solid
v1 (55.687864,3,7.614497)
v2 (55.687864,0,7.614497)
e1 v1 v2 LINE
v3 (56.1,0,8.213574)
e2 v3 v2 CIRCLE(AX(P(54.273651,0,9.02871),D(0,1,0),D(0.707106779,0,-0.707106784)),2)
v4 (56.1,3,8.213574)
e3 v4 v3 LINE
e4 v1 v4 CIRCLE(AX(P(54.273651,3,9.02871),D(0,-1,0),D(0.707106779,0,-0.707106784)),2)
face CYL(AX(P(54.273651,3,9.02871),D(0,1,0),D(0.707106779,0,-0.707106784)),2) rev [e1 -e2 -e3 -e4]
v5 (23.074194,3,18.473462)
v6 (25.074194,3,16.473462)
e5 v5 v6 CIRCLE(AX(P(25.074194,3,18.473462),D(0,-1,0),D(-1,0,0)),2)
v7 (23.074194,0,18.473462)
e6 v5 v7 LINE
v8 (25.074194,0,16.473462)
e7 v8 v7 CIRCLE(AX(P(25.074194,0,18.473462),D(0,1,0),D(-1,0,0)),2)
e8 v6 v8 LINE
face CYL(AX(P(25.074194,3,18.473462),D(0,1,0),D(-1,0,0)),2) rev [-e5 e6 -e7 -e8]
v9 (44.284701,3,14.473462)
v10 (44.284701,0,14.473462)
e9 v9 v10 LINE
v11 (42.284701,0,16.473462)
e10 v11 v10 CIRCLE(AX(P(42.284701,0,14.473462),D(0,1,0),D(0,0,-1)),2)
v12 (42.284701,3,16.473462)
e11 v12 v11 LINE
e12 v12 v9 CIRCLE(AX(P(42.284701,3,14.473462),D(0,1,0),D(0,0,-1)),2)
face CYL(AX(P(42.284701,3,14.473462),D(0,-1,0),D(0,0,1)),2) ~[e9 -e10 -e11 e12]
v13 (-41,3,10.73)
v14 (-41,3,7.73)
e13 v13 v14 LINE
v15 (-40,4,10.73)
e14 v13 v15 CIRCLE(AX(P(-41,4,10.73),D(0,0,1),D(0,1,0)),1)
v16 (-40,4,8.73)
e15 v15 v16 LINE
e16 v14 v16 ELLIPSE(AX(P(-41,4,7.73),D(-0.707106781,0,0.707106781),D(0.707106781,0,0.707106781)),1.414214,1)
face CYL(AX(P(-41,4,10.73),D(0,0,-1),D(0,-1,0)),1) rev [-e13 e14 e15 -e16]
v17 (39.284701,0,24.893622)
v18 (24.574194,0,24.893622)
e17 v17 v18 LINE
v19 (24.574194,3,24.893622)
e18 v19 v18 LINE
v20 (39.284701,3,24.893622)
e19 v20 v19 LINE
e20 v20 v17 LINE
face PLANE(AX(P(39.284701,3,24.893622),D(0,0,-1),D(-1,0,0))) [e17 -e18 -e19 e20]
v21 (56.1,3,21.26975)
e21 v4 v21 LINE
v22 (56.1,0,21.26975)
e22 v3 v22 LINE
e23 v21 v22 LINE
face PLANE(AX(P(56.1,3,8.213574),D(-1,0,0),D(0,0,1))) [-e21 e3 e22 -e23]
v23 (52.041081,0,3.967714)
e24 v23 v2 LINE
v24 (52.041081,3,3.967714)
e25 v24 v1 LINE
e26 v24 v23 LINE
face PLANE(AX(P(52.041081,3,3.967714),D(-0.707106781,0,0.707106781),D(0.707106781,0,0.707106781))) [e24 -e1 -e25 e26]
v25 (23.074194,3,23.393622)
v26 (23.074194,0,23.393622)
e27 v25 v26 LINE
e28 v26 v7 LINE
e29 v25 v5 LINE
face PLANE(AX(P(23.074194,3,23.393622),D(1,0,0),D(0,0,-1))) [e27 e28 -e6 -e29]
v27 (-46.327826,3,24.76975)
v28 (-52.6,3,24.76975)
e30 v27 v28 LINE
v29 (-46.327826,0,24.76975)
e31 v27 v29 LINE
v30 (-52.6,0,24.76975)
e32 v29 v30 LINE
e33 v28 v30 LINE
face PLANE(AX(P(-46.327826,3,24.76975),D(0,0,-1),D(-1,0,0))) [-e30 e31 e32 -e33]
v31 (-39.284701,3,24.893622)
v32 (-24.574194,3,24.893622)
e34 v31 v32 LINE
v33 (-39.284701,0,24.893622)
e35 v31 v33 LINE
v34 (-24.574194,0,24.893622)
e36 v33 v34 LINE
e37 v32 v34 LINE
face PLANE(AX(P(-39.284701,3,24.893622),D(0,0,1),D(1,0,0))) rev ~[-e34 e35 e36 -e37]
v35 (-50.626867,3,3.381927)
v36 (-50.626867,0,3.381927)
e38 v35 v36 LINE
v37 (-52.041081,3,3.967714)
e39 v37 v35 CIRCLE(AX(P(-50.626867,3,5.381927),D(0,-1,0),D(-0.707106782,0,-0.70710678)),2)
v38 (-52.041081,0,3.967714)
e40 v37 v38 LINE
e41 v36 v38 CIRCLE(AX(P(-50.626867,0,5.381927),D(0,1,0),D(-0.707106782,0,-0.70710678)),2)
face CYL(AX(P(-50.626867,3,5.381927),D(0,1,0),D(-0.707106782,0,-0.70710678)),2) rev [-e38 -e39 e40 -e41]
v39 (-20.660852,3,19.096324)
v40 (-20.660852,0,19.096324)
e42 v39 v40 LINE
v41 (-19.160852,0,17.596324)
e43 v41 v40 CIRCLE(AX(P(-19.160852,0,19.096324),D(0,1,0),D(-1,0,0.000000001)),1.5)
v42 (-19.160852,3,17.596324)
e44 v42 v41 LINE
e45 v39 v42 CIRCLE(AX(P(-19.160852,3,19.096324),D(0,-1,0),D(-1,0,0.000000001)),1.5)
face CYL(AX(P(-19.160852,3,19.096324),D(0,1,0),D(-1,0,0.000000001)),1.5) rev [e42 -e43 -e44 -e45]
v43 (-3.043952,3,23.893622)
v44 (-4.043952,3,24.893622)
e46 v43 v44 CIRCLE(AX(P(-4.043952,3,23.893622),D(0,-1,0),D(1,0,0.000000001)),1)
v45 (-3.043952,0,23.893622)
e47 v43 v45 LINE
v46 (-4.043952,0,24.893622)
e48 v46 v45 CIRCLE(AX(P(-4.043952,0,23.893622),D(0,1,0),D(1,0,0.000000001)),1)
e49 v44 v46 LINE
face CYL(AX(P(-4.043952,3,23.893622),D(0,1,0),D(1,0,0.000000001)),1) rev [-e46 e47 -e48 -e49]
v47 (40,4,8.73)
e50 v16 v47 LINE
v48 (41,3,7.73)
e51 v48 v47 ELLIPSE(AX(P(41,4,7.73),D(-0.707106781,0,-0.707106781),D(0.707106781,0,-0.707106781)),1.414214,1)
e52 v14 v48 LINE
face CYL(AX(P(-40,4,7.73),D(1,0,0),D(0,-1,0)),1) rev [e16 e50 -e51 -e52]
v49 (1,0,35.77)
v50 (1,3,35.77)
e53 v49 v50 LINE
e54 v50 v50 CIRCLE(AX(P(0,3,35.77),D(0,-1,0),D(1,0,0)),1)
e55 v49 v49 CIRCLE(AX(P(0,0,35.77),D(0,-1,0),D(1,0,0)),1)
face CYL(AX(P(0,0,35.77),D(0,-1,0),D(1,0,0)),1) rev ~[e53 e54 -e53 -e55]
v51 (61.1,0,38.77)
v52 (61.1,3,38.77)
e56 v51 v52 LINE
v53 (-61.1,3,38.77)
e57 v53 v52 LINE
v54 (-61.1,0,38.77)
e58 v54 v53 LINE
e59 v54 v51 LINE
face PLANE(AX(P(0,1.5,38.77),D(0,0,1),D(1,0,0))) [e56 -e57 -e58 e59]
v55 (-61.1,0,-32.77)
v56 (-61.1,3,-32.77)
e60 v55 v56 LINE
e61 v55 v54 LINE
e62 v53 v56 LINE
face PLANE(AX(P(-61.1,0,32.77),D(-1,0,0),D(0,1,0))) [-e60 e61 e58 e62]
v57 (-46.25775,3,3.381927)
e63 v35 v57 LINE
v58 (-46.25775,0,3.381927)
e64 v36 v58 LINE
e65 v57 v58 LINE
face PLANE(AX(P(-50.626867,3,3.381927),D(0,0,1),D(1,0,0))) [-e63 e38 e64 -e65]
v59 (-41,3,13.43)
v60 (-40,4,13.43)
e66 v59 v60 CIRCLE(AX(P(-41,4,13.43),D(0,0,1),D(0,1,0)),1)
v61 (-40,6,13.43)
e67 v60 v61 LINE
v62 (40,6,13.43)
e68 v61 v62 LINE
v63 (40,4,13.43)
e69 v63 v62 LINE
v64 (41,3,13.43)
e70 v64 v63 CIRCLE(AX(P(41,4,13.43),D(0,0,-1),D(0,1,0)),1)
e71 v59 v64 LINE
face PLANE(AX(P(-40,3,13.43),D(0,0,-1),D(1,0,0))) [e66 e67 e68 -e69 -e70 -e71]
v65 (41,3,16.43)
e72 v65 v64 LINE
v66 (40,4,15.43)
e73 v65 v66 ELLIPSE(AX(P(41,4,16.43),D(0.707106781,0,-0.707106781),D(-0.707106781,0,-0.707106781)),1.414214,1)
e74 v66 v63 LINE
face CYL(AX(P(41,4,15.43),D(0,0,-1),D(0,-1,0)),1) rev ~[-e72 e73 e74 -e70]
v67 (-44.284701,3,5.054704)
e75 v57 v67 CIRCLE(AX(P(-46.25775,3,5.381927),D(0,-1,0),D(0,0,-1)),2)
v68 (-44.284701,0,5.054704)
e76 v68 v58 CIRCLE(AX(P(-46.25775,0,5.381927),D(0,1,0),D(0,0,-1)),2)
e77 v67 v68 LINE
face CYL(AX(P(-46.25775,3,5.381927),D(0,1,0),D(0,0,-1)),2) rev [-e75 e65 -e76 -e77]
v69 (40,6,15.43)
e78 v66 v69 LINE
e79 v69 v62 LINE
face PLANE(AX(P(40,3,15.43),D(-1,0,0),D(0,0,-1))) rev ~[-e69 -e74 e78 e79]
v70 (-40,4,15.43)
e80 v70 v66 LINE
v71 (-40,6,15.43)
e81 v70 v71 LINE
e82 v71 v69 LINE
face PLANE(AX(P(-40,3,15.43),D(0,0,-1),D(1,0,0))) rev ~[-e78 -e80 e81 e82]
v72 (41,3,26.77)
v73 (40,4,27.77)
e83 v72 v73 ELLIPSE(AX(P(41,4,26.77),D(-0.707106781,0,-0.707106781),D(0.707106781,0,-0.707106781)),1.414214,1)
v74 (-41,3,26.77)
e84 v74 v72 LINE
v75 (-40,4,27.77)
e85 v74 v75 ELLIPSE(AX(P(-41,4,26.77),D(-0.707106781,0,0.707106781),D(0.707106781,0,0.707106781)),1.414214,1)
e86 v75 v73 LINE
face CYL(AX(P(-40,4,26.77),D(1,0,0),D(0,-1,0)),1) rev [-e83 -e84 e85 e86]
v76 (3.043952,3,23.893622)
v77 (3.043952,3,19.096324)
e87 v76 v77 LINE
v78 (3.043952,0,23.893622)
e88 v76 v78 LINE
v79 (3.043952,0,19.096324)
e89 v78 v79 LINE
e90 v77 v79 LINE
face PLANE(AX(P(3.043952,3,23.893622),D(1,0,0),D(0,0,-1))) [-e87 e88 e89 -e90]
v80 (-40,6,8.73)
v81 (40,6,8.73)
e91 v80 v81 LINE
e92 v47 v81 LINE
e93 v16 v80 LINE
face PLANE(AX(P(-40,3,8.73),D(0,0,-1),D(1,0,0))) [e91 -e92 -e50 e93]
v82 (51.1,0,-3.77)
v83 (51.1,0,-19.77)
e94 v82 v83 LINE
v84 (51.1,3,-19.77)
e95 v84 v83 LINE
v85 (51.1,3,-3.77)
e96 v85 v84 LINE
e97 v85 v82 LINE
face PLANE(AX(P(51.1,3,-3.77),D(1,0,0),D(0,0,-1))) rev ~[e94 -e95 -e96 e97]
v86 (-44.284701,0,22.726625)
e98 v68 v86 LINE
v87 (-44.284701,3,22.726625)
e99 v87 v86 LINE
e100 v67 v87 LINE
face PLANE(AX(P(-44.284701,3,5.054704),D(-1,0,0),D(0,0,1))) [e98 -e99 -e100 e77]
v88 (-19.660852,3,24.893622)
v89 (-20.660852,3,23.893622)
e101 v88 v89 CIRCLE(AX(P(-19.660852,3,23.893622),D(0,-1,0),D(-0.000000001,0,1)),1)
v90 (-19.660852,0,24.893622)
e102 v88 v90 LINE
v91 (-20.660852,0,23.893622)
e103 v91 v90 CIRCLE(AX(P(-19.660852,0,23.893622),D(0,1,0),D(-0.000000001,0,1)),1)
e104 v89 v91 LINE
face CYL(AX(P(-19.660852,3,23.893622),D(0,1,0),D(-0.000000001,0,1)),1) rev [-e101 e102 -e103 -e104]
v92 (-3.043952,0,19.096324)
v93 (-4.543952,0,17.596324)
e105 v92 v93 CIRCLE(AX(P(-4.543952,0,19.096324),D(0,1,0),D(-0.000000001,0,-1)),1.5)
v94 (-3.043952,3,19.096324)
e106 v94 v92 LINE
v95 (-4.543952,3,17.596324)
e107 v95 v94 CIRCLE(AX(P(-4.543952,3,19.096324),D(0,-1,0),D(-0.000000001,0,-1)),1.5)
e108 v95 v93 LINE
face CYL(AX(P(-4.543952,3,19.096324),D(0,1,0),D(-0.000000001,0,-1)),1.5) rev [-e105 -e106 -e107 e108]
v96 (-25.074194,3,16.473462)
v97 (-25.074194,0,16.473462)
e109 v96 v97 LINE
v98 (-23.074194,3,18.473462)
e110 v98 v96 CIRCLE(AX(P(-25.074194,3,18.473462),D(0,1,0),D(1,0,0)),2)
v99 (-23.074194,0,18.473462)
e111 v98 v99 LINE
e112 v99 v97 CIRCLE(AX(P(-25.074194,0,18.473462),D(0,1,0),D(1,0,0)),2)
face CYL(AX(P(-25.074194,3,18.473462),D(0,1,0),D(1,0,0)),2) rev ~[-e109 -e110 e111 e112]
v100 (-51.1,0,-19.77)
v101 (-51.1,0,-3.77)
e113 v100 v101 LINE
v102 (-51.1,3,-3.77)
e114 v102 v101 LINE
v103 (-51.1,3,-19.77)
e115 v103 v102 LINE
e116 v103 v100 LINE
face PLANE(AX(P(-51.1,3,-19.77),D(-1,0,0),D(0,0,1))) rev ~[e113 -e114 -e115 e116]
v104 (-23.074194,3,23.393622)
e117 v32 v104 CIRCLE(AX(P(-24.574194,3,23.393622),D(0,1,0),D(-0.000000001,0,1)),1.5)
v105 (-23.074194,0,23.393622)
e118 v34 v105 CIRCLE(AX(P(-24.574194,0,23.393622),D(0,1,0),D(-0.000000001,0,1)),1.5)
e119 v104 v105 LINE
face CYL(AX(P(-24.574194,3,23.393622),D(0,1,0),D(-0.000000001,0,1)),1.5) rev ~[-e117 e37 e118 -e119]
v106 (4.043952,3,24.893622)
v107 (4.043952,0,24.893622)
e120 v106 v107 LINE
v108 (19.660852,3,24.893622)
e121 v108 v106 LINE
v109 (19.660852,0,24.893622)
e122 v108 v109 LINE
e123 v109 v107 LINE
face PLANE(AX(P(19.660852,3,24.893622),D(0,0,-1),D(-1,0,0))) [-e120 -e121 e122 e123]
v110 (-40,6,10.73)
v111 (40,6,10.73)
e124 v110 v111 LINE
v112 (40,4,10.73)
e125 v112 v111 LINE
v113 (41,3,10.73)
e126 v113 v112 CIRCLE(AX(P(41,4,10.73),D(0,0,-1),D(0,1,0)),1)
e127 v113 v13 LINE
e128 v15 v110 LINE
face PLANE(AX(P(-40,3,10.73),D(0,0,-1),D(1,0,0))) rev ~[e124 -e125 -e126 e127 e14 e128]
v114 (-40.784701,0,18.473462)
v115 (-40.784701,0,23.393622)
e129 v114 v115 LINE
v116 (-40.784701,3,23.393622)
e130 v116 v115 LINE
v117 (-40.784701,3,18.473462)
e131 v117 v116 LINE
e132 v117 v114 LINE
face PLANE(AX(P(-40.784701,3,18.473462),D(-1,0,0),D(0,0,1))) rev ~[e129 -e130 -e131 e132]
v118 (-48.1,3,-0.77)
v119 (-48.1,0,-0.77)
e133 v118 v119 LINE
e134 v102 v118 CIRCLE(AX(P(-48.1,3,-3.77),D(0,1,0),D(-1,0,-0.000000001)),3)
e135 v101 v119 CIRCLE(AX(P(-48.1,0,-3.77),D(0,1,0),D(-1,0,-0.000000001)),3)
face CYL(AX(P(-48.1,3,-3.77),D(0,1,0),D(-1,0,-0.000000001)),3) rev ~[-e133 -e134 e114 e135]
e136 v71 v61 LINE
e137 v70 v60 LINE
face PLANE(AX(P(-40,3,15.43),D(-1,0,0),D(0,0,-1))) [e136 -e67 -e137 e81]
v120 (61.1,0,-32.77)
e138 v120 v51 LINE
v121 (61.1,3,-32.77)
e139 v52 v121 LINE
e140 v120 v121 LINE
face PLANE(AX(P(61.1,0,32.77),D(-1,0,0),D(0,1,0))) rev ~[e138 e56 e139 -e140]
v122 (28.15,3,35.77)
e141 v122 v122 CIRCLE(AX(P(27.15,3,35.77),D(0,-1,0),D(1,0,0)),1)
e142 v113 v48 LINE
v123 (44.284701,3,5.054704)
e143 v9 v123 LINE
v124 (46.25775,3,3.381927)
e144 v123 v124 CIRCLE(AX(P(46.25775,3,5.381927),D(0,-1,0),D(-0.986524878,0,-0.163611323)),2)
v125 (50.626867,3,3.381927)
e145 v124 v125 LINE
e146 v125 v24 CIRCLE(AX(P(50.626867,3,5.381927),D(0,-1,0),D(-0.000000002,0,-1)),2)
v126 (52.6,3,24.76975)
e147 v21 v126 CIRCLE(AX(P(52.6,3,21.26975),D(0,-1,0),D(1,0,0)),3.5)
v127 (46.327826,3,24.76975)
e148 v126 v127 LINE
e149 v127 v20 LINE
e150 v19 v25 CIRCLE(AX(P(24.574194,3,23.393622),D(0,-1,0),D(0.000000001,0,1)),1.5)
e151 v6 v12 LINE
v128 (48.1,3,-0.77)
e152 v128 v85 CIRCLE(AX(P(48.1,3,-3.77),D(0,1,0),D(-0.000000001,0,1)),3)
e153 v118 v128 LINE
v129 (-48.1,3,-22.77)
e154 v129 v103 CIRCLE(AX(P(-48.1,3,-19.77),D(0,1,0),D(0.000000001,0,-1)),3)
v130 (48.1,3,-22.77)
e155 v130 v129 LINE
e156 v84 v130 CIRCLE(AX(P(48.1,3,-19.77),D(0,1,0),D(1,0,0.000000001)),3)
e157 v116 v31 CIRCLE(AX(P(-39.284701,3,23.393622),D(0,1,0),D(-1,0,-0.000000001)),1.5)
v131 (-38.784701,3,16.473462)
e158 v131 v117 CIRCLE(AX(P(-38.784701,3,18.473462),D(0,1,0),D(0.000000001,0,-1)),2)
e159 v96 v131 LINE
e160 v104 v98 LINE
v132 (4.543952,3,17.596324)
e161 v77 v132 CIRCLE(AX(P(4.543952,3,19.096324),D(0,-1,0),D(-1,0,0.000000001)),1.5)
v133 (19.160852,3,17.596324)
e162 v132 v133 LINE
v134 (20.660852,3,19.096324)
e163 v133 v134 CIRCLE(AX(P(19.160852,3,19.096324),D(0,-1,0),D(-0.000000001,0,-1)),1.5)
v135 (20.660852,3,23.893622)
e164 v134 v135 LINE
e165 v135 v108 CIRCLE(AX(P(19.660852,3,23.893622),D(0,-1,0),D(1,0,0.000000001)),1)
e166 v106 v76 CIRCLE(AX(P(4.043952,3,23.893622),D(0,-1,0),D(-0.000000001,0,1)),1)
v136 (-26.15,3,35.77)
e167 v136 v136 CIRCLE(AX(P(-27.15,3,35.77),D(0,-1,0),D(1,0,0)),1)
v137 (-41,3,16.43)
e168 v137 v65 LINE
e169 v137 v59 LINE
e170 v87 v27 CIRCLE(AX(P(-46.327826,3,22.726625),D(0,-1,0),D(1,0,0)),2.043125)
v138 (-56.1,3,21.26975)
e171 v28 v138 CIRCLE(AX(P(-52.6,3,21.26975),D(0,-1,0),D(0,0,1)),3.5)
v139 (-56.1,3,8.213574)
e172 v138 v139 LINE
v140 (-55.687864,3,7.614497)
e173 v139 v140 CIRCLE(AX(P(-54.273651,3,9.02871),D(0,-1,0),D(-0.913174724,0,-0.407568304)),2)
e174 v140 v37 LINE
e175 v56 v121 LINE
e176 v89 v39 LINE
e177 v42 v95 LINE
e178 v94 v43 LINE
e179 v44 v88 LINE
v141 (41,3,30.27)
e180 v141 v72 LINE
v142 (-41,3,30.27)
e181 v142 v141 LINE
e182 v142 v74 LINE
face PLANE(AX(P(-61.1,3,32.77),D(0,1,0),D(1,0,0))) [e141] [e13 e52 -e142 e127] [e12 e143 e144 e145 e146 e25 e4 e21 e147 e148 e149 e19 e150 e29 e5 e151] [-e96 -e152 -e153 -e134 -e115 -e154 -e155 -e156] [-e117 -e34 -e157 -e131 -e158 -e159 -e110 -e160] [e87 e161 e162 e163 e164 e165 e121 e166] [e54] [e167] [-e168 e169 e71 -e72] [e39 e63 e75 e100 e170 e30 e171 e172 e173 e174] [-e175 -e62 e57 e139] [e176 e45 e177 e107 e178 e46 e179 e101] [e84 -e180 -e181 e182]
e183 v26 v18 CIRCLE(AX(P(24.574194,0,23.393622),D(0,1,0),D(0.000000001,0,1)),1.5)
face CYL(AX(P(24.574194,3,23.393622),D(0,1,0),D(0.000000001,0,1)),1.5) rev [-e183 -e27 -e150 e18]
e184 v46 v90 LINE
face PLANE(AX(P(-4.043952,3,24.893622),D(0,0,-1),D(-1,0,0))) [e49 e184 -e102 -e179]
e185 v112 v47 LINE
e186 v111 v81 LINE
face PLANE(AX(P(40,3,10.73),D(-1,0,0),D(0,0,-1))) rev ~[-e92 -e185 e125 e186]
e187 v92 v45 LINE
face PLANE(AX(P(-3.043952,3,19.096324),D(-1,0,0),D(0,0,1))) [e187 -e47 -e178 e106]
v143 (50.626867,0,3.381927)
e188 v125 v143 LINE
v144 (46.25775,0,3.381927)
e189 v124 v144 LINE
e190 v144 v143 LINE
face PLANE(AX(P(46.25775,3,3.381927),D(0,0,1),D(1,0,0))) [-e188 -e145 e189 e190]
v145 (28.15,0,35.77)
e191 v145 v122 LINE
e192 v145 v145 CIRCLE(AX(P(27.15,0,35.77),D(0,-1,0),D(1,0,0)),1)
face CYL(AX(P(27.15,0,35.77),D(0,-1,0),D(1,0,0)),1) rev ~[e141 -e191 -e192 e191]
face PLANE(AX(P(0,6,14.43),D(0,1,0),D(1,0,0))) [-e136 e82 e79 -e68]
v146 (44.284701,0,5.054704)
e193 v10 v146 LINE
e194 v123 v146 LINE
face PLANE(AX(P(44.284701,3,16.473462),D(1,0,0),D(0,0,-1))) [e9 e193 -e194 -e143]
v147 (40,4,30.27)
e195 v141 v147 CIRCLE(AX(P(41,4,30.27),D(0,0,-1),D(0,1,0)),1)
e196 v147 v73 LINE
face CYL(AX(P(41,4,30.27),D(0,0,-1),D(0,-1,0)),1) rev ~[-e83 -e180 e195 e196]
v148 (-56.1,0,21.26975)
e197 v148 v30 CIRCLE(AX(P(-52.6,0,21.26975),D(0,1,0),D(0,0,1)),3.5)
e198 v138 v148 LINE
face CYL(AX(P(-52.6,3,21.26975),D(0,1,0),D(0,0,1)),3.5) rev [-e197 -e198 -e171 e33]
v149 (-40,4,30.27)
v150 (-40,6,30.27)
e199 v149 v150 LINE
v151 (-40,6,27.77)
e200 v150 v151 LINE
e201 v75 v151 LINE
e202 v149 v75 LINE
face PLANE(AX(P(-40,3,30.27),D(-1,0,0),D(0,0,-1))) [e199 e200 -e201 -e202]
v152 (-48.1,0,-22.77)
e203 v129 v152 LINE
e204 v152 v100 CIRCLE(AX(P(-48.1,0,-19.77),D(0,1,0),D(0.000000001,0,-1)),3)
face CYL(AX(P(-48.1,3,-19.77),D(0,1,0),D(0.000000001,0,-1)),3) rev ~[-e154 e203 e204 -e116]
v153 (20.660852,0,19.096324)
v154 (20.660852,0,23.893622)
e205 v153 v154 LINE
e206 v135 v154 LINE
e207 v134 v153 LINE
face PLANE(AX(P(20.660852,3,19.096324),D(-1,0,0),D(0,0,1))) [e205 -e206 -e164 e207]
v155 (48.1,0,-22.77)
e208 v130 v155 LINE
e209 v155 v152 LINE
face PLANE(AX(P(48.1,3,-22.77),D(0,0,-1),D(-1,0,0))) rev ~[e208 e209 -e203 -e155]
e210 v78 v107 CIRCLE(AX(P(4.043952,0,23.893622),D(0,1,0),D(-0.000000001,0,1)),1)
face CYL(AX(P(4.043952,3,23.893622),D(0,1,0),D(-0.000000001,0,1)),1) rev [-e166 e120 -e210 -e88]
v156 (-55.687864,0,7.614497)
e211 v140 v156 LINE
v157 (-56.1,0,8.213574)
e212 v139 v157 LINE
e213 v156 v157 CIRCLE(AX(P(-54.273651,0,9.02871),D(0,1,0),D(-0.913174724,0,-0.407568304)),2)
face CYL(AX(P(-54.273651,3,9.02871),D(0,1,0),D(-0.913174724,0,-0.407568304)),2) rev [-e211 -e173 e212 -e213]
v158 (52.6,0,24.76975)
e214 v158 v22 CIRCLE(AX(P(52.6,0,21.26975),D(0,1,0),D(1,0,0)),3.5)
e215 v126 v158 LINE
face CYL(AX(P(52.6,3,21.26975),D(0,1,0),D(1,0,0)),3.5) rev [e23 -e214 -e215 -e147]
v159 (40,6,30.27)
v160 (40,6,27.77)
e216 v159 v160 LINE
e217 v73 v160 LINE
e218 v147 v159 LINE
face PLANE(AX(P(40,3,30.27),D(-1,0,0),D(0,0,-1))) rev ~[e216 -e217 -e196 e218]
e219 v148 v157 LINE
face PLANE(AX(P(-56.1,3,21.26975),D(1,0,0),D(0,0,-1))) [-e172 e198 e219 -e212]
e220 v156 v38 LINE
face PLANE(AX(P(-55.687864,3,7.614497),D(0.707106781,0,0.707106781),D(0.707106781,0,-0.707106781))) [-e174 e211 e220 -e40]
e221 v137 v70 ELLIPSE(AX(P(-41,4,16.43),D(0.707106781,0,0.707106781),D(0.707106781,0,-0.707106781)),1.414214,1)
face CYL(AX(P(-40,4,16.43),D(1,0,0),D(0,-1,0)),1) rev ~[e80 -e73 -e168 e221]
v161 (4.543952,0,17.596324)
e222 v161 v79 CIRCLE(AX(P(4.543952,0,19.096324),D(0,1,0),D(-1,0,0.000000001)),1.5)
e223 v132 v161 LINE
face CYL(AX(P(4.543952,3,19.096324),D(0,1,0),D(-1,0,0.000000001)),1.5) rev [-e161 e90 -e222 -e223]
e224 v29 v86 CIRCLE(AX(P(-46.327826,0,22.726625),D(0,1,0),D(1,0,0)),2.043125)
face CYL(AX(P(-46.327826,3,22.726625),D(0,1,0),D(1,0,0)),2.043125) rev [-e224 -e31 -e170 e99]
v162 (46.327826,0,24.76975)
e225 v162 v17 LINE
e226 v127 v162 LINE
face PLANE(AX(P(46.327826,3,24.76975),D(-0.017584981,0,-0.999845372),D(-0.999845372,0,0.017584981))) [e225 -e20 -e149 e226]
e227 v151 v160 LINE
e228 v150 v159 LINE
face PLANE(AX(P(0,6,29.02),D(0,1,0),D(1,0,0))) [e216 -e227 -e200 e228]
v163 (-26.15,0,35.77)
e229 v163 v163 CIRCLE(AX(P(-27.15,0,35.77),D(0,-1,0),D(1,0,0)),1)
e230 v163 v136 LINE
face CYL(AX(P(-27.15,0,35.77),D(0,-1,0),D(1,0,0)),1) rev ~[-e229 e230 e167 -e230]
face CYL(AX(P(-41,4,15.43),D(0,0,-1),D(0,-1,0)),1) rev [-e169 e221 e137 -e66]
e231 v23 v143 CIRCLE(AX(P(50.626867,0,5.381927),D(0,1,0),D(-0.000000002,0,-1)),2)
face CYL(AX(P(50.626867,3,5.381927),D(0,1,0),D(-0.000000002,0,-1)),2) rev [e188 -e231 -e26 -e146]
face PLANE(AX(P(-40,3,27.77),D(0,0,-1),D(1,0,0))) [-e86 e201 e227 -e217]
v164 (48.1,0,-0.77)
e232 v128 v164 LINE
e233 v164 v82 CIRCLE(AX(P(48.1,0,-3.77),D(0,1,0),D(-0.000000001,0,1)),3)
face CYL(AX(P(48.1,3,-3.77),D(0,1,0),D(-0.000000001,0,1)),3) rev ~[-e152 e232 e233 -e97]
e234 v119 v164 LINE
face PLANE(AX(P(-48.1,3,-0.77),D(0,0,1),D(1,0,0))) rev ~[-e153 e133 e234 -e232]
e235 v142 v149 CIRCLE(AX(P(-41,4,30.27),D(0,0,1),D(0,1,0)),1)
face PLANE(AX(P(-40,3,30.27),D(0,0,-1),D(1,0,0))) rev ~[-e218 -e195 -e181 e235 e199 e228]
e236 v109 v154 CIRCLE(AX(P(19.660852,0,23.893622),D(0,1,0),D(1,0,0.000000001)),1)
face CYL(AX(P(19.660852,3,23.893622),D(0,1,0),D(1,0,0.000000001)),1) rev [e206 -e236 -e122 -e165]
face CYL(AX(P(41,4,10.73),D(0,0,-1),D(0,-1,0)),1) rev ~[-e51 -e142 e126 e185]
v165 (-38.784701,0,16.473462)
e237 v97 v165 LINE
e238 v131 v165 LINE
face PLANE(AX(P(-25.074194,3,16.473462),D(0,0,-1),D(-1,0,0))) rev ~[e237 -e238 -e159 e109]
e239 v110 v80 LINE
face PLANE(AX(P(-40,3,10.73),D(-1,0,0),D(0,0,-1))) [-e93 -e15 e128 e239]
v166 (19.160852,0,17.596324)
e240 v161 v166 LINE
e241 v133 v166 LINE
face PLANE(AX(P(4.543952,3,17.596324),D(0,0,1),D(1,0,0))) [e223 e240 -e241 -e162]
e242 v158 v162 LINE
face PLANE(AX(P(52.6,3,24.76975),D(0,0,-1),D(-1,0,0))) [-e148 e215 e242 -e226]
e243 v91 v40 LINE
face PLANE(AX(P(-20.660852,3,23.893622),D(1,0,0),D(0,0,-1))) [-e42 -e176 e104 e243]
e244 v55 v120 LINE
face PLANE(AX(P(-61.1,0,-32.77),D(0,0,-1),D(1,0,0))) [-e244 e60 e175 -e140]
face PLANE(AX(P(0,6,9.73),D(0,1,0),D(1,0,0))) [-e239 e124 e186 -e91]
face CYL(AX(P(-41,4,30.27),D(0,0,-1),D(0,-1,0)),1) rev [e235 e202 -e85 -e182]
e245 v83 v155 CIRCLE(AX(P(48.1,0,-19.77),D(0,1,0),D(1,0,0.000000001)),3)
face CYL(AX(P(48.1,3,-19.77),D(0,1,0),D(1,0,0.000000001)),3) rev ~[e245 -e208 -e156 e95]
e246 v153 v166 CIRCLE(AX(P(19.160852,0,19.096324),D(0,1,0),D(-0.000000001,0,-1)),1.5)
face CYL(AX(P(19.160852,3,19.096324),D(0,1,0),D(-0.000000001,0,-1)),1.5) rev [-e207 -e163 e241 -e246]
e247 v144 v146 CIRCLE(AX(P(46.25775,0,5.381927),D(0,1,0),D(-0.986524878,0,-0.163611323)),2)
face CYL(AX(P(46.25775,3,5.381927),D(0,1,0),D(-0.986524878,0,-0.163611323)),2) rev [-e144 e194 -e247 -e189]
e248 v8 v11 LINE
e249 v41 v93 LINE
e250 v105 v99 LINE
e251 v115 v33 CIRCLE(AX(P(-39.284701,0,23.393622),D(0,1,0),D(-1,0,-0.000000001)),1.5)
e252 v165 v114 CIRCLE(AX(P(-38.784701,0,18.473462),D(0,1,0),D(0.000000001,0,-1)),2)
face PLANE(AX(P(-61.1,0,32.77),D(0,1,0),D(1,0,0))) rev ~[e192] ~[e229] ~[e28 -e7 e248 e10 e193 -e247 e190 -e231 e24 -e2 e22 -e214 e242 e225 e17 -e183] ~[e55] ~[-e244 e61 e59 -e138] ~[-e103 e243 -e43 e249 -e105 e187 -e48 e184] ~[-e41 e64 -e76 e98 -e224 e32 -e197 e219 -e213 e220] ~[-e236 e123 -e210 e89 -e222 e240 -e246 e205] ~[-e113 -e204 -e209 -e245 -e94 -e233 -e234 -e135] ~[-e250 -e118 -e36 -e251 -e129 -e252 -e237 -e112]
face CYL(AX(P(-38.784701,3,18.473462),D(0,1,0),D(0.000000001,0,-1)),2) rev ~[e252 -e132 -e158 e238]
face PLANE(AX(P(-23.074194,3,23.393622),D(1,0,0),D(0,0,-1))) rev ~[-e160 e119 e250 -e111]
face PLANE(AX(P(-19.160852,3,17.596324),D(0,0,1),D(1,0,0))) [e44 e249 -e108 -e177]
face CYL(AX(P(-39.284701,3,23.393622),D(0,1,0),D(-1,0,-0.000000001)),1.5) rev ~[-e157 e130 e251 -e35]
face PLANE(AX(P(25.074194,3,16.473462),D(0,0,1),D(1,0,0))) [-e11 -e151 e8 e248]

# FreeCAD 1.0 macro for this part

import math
import FreeCAD as App
import Part
import Sketcher
from FreeCAD import Vector


def edges_at(feature, points):
    """Names of the edges that pass closest to the given points."""
    edges = feature.Shape.Edges
    near = lambda p: min(range(len(edges)), key=lambda i: edges[i].distToShape(Part.Vertex(*p))[0])
    return sorted({f"Edge{near(p) + 1}" for p in points})


def add_polygon(sketch, points):
    """Adds a closed chain of lines whose ends are joined by coincident constraints."""
    first, n = sketch.GeometryCount, len(points)
    for a, b in zip(points, points[1:] + points[:1]):
        sketch.addGeometry(Part.LineSegment(App.Vector(*a, 0), App.Vector(*b, 0)), False)
    for i in range(n):
        sketch.addConstraint(Sketcher.Constraint("Coincident", first + i, 2, first + (i + 1) % n, 1))

doc = App.newDocument("Part")
body = doc.addObject("PartDesign::Body", "Body")

# Sketch on XZ plane
sketch1 = body.newObject("Sketcher::SketchObject", "Sketch")
sketch1.AttachmentSupport = (doc.getObject("XZ_Plane"), [""])
sketch1.MapMode = "FlatFace"
add_polygon(sketch1, [(-61.1, -32.77), (-61.1, 32.77), (61.1, 32.77), (61.1, -32.77)])  # lines 0-3
sketch1.addConstraint([
    Sketcher.Constraint("Vertical", 0),
    Sketcher.Constraint("Horizontal", 1),
    Sketcher.Constraint("Vertical", 2),
    Sketcher.Constraint("Horizontal", 3),
    Sketcher.Constraint("Symmetric", 0, 2, 2, 2, -1, 1),
    Sketcher.Constraint("DistanceX", 1, 1, 1, 2, 122.2),
    Sketcher.Constraint("DistanceY", 0, 1, 0, 2, 65.54),
])
pad1 = body.newObject("PartDesign::Pad", "Pad")
pad1.Profile = sketch1
pad1.Length = 3
pad1.Reversed = True

# Sketch on XZ plane
sketch2 = body.newObject("Sketcher::SketchObject", "Sketch001")
sketch2.AttachmentSupport = (doc.getObject("XZ_Plane"), [""])
sketch2.MapMode = "FlatFace"
sketch2.AttachmentOffset = App.Placement(Vector(0, 0, -3), App.Rotation())
add_polygon(sketch2, [(-40, 8.73), (-40, 10.73), (40, 10.73), (40, 8.73)])  # lines 0-3
add_polygon(sketch2, [(-40, 13.43), (-40, 15.43), (40, 15.43), (40, 13.43)])  # lines 4-7
sketch2.addConstraint([
    Sketcher.Constraint("Vertical", 0),
    Sketcher.Constraint("Horizontal", 1),
    Sketcher.Constraint("Vertical", 2),
    Sketcher.Constraint("Horizontal", 3),
    Sketcher.Constraint("Vertical", 4),
    Sketcher.Constraint("Horizontal", 5),
    Sketcher.Constraint("Vertical", 6),
    Sketcher.Constraint("Horizontal", 7),
    Sketcher.Constraint("Vertical", 3, 2, 4, 2),
    Sketcher.Constraint("Vertical", 2, 2, 5, 2),
    Sketcher.Constraint("Equal", 2, 4),
    Sketcher.Constraint("DistanceX", 1, 1, 1, 2, 80.0),
    Sketcher.Constraint("DistanceY", 0, 1, 0, 2, 2.0),
    Sketcher.Constraint("DistanceX", 0, 2, -1, 1, 40.0),
    Sketcher.Constraint("DistanceY", 0, 2, 4, 2, 4.7),
    Sketcher.Constraint("DistanceY", -1, 1, 0, 2, 10.73),
])
pad2 = body.newObject("PartDesign::Pad", "Pad001")
pad2.Profile = sketch2
pad2.Length = 10
pad2.Reversed = True
doc.recompute()

fillet = body.newObject("PartDesign::Fillet", "Fillet")
fillet.Base = (pad2, edges_at(pad2, [
    (40, 3, 14.43),
    (0, 3, 15.43),
    (-40, 3, 14.43),
    (40, 3, 9.73),
    (0, 3, 8.73),
    (-40, 3, 9.73),
]))
fillet.Radius = 1

# Sketch on XZ plane
sketch3 = body.newObject("Sketcher::SketchObject", "Sketch002")
sketch3.AttachmentSupport = (doc.getObject("XZ_Plane"), [""])
sketch3.MapMode = "FlatFace"
sketch3.AttachmentOffset = App.Placement(Vector(0, 0, -13), App.Rotation())
add_polygon(sketch3, [(-40, 8.73), (-40, 10.73), (40, 10.73), (40, 8.73)])  # lines 0-3
add_polygon(sketch3, [(-40, 13.43), (-40, 15.43), (40, 15.43), (40, 13.43)])  # lines 4-7
sketch3.addConstraint([
    Sketcher.Constraint("Vertical", 0),
    Sketcher.Constraint("Horizontal", 1),
    Sketcher.Constraint("Vertical", 2),
    Sketcher.Constraint("Horizontal", 3),
    Sketcher.Constraint("Vertical", 4),
    Sketcher.Constraint("Horizontal", 5),
    Sketcher.Constraint("Vertical", 6),
    Sketcher.Constraint("Horizontal", 7),
    Sketcher.Constraint("Vertical", 3, 2, 4, 2),
    Sketcher.Constraint("Vertical", 2, 2, 5, 2),
    Sketcher.Constraint("Equal", 2, 4),
    Sketcher.Constraint("DistanceX", 1, 1, 1, 2, 80.0),
    Sketcher.Constraint("DistanceY", 0, 1, 0, 2, 2.0),
    Sketcher.Constraint("DistanceX", 0, 2, -1, 1, 40.0),
    Sketcher.Constraint("DistanceY", 0, 2, 4, 2, 4.7),
    Sketcher.Constraint("DistanceY", -1, 1, 0, 2, 10.73),
])
pocket1 = body.newObject("PartDesign::Pocket", "Pocket")
pocket1.Profile = sketch3
pocket1.Length = 7
pocket1.Reversed = True

# Sketch on XZ plane
sketch4 = body.newObject("Sketcher::SketchObject", "Sketch003")
sketch4.AttachmentSupport = (doc.getObject("XZ_Plane"), [""])
sketch4.MapMode = "FlatFace"
sketch4.AttachmentOffset = App.Placement(Vector(0, 0, -3), App.Rotation())
add_polygon(sketch4, [(-40, 27.77), (-40, 30.27), (40, 30.27), (40, 27.77)])  # lines 0-3
sketch4.addConstraint([
    Sketcher.Constraint("Vertical", 0),
    Sketcher.Constraint("Horizontal", 1),
    Sketcher.Constraint("Vertical", 2),
    Sketcher.Constraint("Horizontal", 3),
    Sketcher.Constraint("DistanceX", 1, 1, 1, 2, 80.0),
    Sketcher.Constraint("DistanceY", 0, 1, 0, 2, 2.5),
    Sketcher.Constraint("DistanceX", 0, 2, -1, 1, 40.0),
    Sketcher.Constraint("DistanceY", -1, 1, 0, 2, 30.27),
])
pad3 = body.newObject("PartDesign::Pad", "Pad002")
pad3.Profile = sketch4
pad3.Length = 3
pad3.Reversed = True
doc.recompute()

fillet2 = body.newObject("PartDesign::Fillet", "Fillet001")
fillet2.Base = (pad3, edges_at(pad3, [(40, 3, 29.02), (0, 3, 27.77), (-40, 3, 29.02)]))
fillet2.Radius = 1
doc.recompute()

mirrored = body.newObject("PartDesign::Mirrored", "Mirrored")
mirrored.Originals = [pad3]
mirrored.MirrorPlane = (doc.getObject("YZ_Plane"), [""])
body.Tip = mirrored

# Sketch on XZ plane
sketch5 = body.newObject("Sketcher::SketchObject", "Sketch004")
sketch5.AttachmentSupport = (doc.getObject("XZ_Plane"), [""])
sketch5.MapMode = "FlatFace"
sketch5.AttachmentOffset = App.Placement(Vector(0, 0, -3), App.Rotation())
sketch5.addGeometry([
    Part.LineSegment(Vector(48.1, -22.77, 0), Vector(-48.1, -22.77, 0)),  # 0
    Part.ArcOfCircle(Part.Circle(Vector(-48.1, -19.77, 0), Vector(0, 0, 1), 3), math.radians(180), math.radians(270)),  # 1
    Part.LineSegment(Vector(-51.1, -19.77, 0), Vector(-51.1, -3.77, 0)),  # 2
    Part.ArcOfCircle(Part.Circle(Vector(-48.1, -3.77, 0), Vector(0, 0, 1), 3), math.radians(90), math.radians(180)),  # 3
    Part.LineSegment(Vector(-48.1, -0.77, 0), Vector(48.1, -0.77, 0)),  # 4
    Part.ArcOfCircle(Part.Circle(Vector(48.1, -3.77, 0), Vector(0, 0, 1), 3), math.radians(0), math.radians(90)),  # 5
    Part.LineSegment(Vector(51.1, -3.77, 0), Vector(51.1, -19.77, 0)),  # 6
    Part.ArcOfCircle(Part.Circle(Vector(48.1, -19.77, 0), Vector(0, 0, 1), 3), math.radians(-90), math.radians(0)),  # 7
], False)
sketch5.addConstraint([
    Sketcher.Constraint("Tangent", 0, 2, 1, 2),
    Sketcher.Constraint("Tangent", 1, 1, 2, 1),
    Sketcher.Constraint("Tangent", 2, 2, 3, 2),
    Sketcher.Constraint("Tangent", 3, 1, 4, 1),
    Sketcher.Constraint("Tangent", 4, 2, 5, 2),
    Sketcher.Constraint("Tangent", 5, 1, 6, 1),
    Sketcher.Constraint("Tangent", 6, 2, 7, 2),
    Sketcher.Constraint("Tangent", 7, 1, 0, 1),
    Sketcher.Constraint("Horizontal", 0),
    Sketcher.Constraint("Vertical", 2),
    Sketcher.Constraint("Horizontal", 4),
    Sketcher.Constraint("Vertical", 6),
    Sketcher.Constraint("Equal", 1, 3),
    Sketcher.Constraint("Equal", 3, 5),
    Sketcher.Constraint("Equal", 5, 7),
    Sketcher.Constraint("Radius", 1, 3.0),
    Sketcher.Constraint("DistanceY", 2, 1, 2, 2, 16.0),
    Sketcher.Constraint("DistanceX", 0, 2, 0, 1, 96.2),
    Sketcher.Constraint("DistanceX", 1, 3, -1, 1, 48.1),
    Sketcher.Constraint("DistanceY", 1, 3, -1, 1, 19.77),
])
pocket2 = body.newObject("PartDesign::Pocket", "Pocket001")
pocket2.Profile = sketch5
pocket2.Length = 10
pocket2.Reversed = True

# Sketch on XZ plane
sketch6 = body.newObject("Sketcher::SketchObject", "Sketch005")
sketch6.AttachmentSupport = (doc.getObject("XZ_Plane"), [""])
sketch6.MapMode = "FlatFace"
sketch6.AttachmentOffset = App.Placement(Vector(0, 0, -3), App.Rotation())
sketch6.addGeometry([
    Part.ArcOfCircle(Part.Circle(Vector(24.574194, 23.393622, 0), Vector(0, 0, 1), 1.5), math.radians(90), math.radians(180)),  # 0
    Part.LineSegment(Vector(24.574194, 24.893622, 0), Vector(39.284701, 24.893622, 0)),  # 1
    Part.LineSegment(Vector(39.284701, 24.893622, 0), Vector(46.327826, 24.76975, 0)),  # 2
    Part.LineSegment(Vector(46.327826, 24.76975, 0), Vector(52.6, 24.76975, 0)),  # 3
    Part.ArcOfCircle(Part.Circle(Vector(52.6, 21.26975, 0), Vector(0, 0, 1), 3.5), math.radians(0), math.radians(90)),  # 4
    Part.LineSegment(Vector(56.1, 21.26975, 0), Vector(56.1, 8.213574, 0)),  # 5
    Part.ArcOfCircle(Part.Circle(Vector(54.273651, 9.02871, 0), Vector(0, 0, 1), 2), math.radians(-45), math.radians(-24.052171)),  # 6
    Part.LineSegment(Vector(55.687864, 7.614497, 0), Vector(52.041081, 3.967714, 0)),  # 7
    Part.ArcOfCircle(Part.Circle(Vector(50.626867, 5.381927, 0), Vector(0, 0, 1), 2), math.radians(-90), math.radians(-45)),  # 8
    Part.LineSegment(Vector(50.626867, 3.381927, 0), Vector(46.25775, 3.381927, 0)),  # 9
    Part.ArcOfCircle(Part.Circle(Vector(46.25775, 5.381927, 0), Vector(0, 0, 1), 2), math.radians(-170.583427), math.radians(-90)),  # 10
    Part.LineSegment(Vector(44.284701, 5.054704, 0), Vector(44.284701, 16.473462, 0)),  # 11
    Part.LineSegment(Vector(44.284701, 16.473462, 0), Vector(25.074194, 16.473462, 0)),  # 12
    Part.ArcOfCircle(Part.Circle(Vector(25.074194, 18.473462, 0), Vector(0, 0, 1), 2), math.radians(180), math.radians(270)),  # 13
    Part.LineSegment(Vector(23.074194, 18.473462, 0), Vector(23.074194, 23.393622, 0)),  # 14
    Part.ArcOfCircle(Part.Circle(Vector(19.660852, 23.893622, 0), Vector(0, 0, 1), 1), math.radians(0), math.radians(90)),  # 15
    Part.LineSegment(Vector(20.660852, 23.893622, 0), Vector(20.660852, 19.096324, 0)),  # 16
    Part.ArcOfCircle(Part.Circle(Vector(19.160852, 19.096324, 0), Vector(0, 0, 1), 1.5), math.radians(-90), math.radians(0)),  # 17
    Part.LineSegment(Vector(19.160852, 17.596324, 0), Vector(4.543952, 17.596324, 0)),  # 18
    Part.ArcOfCircle(Part.Circle(Vector(4.543952, 19.096324, 0), Vector(0, 0, 1), 1.5), math.radians(180), math.radians(270)),  # 19
    Part.LineSegment(Vector(3.043952, 19.096324, 0), Vector(3.043952, 23.893622, 0)),  # 20
    Part.ArcOfCircle(Part.Circle(Vector(4.043952, 23.893622, 0), Vector(0, 0, 1), 1), math.radians(90), math.radians(180)),  # 21
    Part.LineSegment(Vector(4.043952, 24.893622, 0), Vector(19.660852, 24.893622, 0)),  # 22
    Part.ArcOfCircle(Part.Circle(Vector(-19.160852, 19.096324, 0), Vector(0, 0, 1), 1.5), math.radians(180), math.radians(270)),  # 23
    Part.LineSegment(Vector(-20.660852, 19.096324, 0), Vector(-20.660852, 23.893622, 0)),  # 24
    Part.ArcOfCircle(Part.Circle(Vector(-19.660852, 23.893622, 0), Vector(0, 0, 1), 1), math.radians(90), math.radians(180)),  # 25
    Part.LineSegment(Vector(-19.660852, 24.893622, 0), Vector(-4.043952, 24.893622, 0)),  # 26
    Part.ArcOfCircle(Part.Circle(Vector(-4.043952, 23.893622, 0), Vector(0, 0, 1), 1), math.radians(0), math.radians(90)),  # 27
    Part.LineSegment(Vector(-3.043952, 23.893622, 0), Vector(-3.043952, 19.096324, 0)),  # 28
    Part.ArcOfCircle(Part.Circle(Vector(-4.543952, 19.096324, 0), Vector(0, 0, 1), 1.5), math.radians(-90), math.radians(0)),  # 29
    Part.LineSegment(Vector(-4.543952, 17.596324, 0), Vector(-19.160852, 17.596324, 0)),  # 30
    Part.LineSegment(Vector(-56.1, 8.213574, 0), Vector(-56.1, 21.26975, 0)),  # 31
    Part.ArcOfCircle(Part.Circle(Vector(-52.6, 21.26975, 0), Vector(0, 0, 1), 3.5), math.radians(90), math.radians(180)),  # 32
    Part.LineSegment(Vector(-52.6, 24.76975, 0), Vector(-46.327826, 24.76975, 0)),  # 33
    Part.ArcOfCircle(Part.Circle(Vector(-46.327826, 22.726625, 0), Vector(0, 0, 1), 2.043125), math.radians(0), math.radians(90)),  # 34
    Part.LineSegment(Vector(-44.284701, 22.726625, 0), Vector(-44.284701, 5.054704, 0)),  # 35
    Part.ArcOfCircle(Part.Circle(Vector(-46.25775, 5.381927, 0), Vector(0, 0, 1), 2), math.radians(-90), math.radians(-9.416573)),  # 36
    Part.LineSegment(Vector(-46.25775, 3.381927, 0), Vector(-50.626867, 3.381927, 0)),  # 37
    Part.ArcOfCircle(Part.Circle(Vector(-50.626867, 5.381927, 0), Vector(0, 0, 1), 2), math.radians(-135), math.radians(-90)),  # 38
    Part.LineSegment(Vector(-52.041081, 3.967714, 0), Vector(-55.687864, 7.614497, 0)),  # 39
    Part.ArcOfCircle(Part.Circle(Vector(-54.273651, 9.02871, 0), Vector(0, 0, 1), 2), math.radians(-155.947829), math.radians(-135)),  # 40
    Part.LineSegment(Vector(-39.284701, 24.893622, 0), Vector(-24.574194, 24.893622, 0)),  # 41
    Part.ArcOfCircle(Part.Circle(Vector(-24.574194, 23.393622, 0), Vector(0, 0, 1), 1.5), math.radians(0), math.radians(90)),  # 42
    Part.LineSegment(Vector(-23.074194, 23.393622, 0), Vector(-23.074194, 18.473462, 0)),  # 43
    Part.ArcOfCircle(Part.Circle(Vector(-25.074194, 18.473462, 0), Vector(0, 0, 1), 2), math.radians(-90), math.radians(0)),  # 44
    Part.LineSegment(Vector(-25.074194, 16.473462, 0), Vector(-38.784701, 16.473462, 0)),  # 45
    Part.ArcOfCircle(Part.Circle(Vector(-38.784701, 18.473462, 0), Vector(0, 0, 1), 2), math.radians(180), math.radians(270)),  # 46
    Part.LineSegment(Vector(-40.784701, 18.473462, 0), Vector(-40.784701, 23.393622, 0)),  # 47
    Part.ArcOfCircle(Part.Circle(Vector(-39.284701, 23.393622, 0), Vector(0, 0, 1), 1.5), math.radians(90), math.radians(180)),  # 48
], False)
sketch6.addConstraint([
    Sketcher.Constraint("Tangent", 0, 1, 1, 1),
    Sketcher.Constraint("Coincident", 1, 2, 2, 1),
    Sketcher.Constraint("Coincident", 2, 2, 3, 1),
    Sketcher.Constraint("Tangent", 3, 2, 4, 2),
    Sketcher.Constraint("Tangent", 4, 1, 5, 1),
    Sketcher.Constraint("Coincident", 5, 2, 6, 2),
    Sketcher.Constraint("Tangent", 6, 1, 7, 1),
    Sketcher.Constraint("Tangent", 7, 2, 8, 2),
    Sketcher.Constraint("Tangent", 8, 1, 9, 1),
    Sketcher.Constraint("Tangent", 9, 2, 10, 2),
    Sketcher.Constraint("Coincident", 10, 1, 11, 1),
    Sketcher.Constraint("Coincident", 11, 2, 12, 1),
    Sketcher.Constraint("Tangent", 12, 2, 13, 2),
    Sketcher.Constraint("Tangent", 13, 1, 14, 1),
    Sketcher.Constraint("Tangent", 14, 2, 0, 2),
    Sketcher.Constraint("Tangent", 15, 1, 16, 1),
    Sketcher.Constraint("Tangent", 16, 2, 17, 2),
    Sketcher.Constraint("Tangent", 17, 1, 18, 1),
    Sketcher.Constraint("Tangent", 18, 2, 19, 2),
    Sketcher.Constraint("Tangent", 19, 1, 20, 1),
    Sketcher.Constraint("Tangent", 20, 2, 21, 2),
    Sketcher.Constraint("Tangent", 21, 1, 22, 1),
    Sketcher.Constraint("Tangent", 22, 2, 15, 2),
    Sketcher.Constraint("Tangent", 23, 1, 24, 1),
    Sketcher.Constraint("Tangent", 24, 2, 25, 2),
    Sketcher.Constraint("Tangent", 25, 1, 26, 1),
    Sketcher.Constraint("Tangent", 26, 2, 27, 2),
    Sketcher.Constraint("Tangent", 27, 1, 28, 1),
    Sketcher.Constraint("Tangent", 28, 2, 29, 2),
    Sketcher.Constraint("Tangent", 29, 1, 30, 1),
    Sketcher.Constraint("Tangent", 30, 2, 23, 2),
    Sketcher.Constraint("Tangent", 31, 2, 32, 2),
    Sketcher.Constraint("Tangent", 32, 1, 33, 1),
    Sketcher.Constraint("Tangent", 33, 2, 34, 2),
    Sketcher.Constraint("Tangent", 34, 1, 35, 1),
    Sketcher.Constraint("Coincident", 35, 2, 36, 2),
    Sketcher.Constraint("Tangent", 36, 1, 37, 1),
    Sketcher.Constraint("Tangent", 37, 2, 38, 2),
    Sketcher.Constraint("Tangent", 38, 1, 39, 1),
    Sketcher.Constraint("Tangent", 39, 2, 40, 2),
    Sketcher.Constraint("Coincident", 40, 1, 31, 1),
    Sketcher.Constraint("Tangent", 41, 2, 42, 2),
    Sketcher.Constraint("Tangent", 42, 1, 43, 1),
    Sketcher.Constraint("Tangent", 43, 2, 44, 2),
    Sketcher.Constraint("Tangent", 44, 1, 45, 1),
    Sketcher.Constraint("Tangent", 45, 2, 46, 2),
    Sketcher.Constraint("Tangent", 46, 1, 47, 1),
    Sketcher.Constraint("Tangent", 47, 2, 48, 2),
    Sketcher.Constraint("Tangent", 48, 1, 41, 1),
    Sketcher.Constraint("Horizontal", 1),
    Sketcher.Constraint("Horizontal", 3),
    Sketcher.Constraint("Vertical", 5),
    Sketcher.Constraint("Horizontal", 9),
    Sketcher.Constraint("Vertical", 11),
    Sketcher.Constraint("Horizontal", 12),
    Sketcher.Constraint("Vertical", 14),
    Sketcher.Constraint("Vertical", 16),
    Sketcher.Constraint("Horizontal", 18),
    Sketcher.Constraint("Vertical", 20),
    Sketcher.Constraint("Horizontal", 22),
    Sketcher.Constraint("Vertical", 24),
    Sketcher.Constraint("Horizontal", 26),
    Sketcher.Constraint("Vertical", 28),
    Sketcher.Constraint("Horizontal", 30),
    Sketcher.Constraint("Vertical", 31),
    Sketcher.Constraint("Horizontal", 33),
    Sketcher.Constraint("Vertical", 35),
    Sketcher.Constraint("Horizontal", 37),
    Sketcher.Constraint("Horizontal", 41),
    Sketcher.Constraint("Vertical", 43),
    Sketcher.Constraint("Horizontal", 45),
    Sketcher.Constraint("Vertical", 47),
    Sketcher.Constraint("Equal", 6, 8),
    Sketcher.Constraint("Equal", 8, 10),
    Sketcher.Constraint("Equal", 10, 13),
    Sketcher.Constraint("Equal", 0, 17),
    Sketcher.Constraint("Equal", 17, 19),
    Sketcher.Constraint("Equal", 15, 21),
    Sketcher.Constraint("Equal", 19, 23),
    Sketcher.Constraint("Equal", 21, 25),
    Sketcher.Constraint("Equal", 25, 27),
    Sketcher.Constraint("Equal", 23, 29),
    Sketcher.Constraint("Equal", 4, 32),
    Sketcher.Constraint("Equal", 13, 36),
    Sketcher.Constraint("Equal", 36, 38),
    Sketcher.Constraint("Equal", 38, 40),
    Sketcher.Constraint("Equal", 29, 42),
    Sketcher.Constraint("Equal", 40, 44),
    Sketcher.Constraint("Equal", 44, 46),
    Sketcher.Constraint("Equal", 42, 48),
    Sketcher.Constraint("Symmetric", 17, 3, 23, 3, -2),
    Sketcher.Constraint("Symmetric", 21, 3, 27, 3, -2),
    Sketcher.Constraint("Symmetric", 4, 3, 32, 3, -2),
    Sketcher.Constraint("Symmetric", 10, 3, 36, 3, -2),
    Sketcher.Constraint("Symmetric", 6, 3, 40, 3, -2),
    Sketcher.Constraint("Symmetric", 0, 3, 42, 3, -2),
    Sketcher.Constraint("Perpendicular", 7, 39),
    Sketcher.Constraint("Horizontal", 13, 3, 44, 3),
    Sketcher.Constraint("Horizontal", 1, 2, 21, 1),
    Sketcher.Constraint("Horizontal", 10, 1, 35, 2),
    Sketcher.Constraint("Horizontal", 7, 2, 38, 1),
    Sketcher.Constraint("Equal", 3, 33),
    Sketcher.Constraint("Equal", 1, 41),
    Sketcher.Constraint("Radius", 6, 2.0),
    Sketcher.Constraint("Radius", 15, 1.0),
    Sketcher.Constraint("Radius", 0, 1.5),
    Sketcher.Constraint("Radius", 4, 3.5),
    Sketcher.Constraint("DistanceX", -1, 1, 4, 3, 52.6),
    Sketcher.Constraint("DistanceX", 18, 2, 18, 1, 14.6169),
    Sketcher.Constraint("Radius", 34, 2.043125),
    Sketcher.Constraint("DistanceY", 14, 1, 14, 2, 4.92016),
    Sketcher.Constraint("DistanceY", 35, 2, 35, 1, 17.67192),
    Sketcher.Constraint("DistanceX", 46, 3, -1, 1, 38.784701),
    Sketcher.Constraint("DistanceX", -1, 1, 10, 1, 44.284701),
    Sketcher.Constraint("Distance", 7, 5.15733),
    Sketcher.Constraint("DistanceX", 1, 1, 1, 2, 14.710507),
    Sketcher.Constraint("DistanceX", 9, 2, 9, 1, 4.369117),
    Sketcher.Constraint("DistanceY", 5, 2, 5, 1, 13.056176),
    Sketcher.Constraint("DistanceY", 11, 1, 11, 2, 11.418758),
    Sketcher.Constraint("DistanceY", 16, 2, 16, 1, 4.797298),
    Sketcher.Constraint("DistanceY", -1, 1, 4, 3, 21.26975),
    Sketcher.Constraint("DistanceX", -1, 1, 15, 3, 19.660852),
])
pocket3 = body.newObject("PartDesign::Pocket", "Pocket002")
pocket3.Profile = sketch6
pocket3.Length = 10
pocket3.Reversed = True

# Sketch on XY plane
sketch7 = body.newObject("Sketcher::SketchObject", "Sketch006")
sketch7.AttachmentSupport = (doc.getObject("XY_Plane"), [""])
sketch7.MapMode = "FlatFace"
sketch7.AttachmentOffset = App.Placement(Vector(0, 0, 32.77), App.Rotation())
add_polygon(sketch7, [(-61.1, 3), (-61.1, 0), (61.1, 0), (61.1, 3)])  # lines 0-3
sketch7.addConstraint([
    Sketcher.Constraint("Vertical", 0),
    Sketcher.Constraint("Horizontal", 1),
    Sketcher.Constraint("Vertical", 2),
    Sketcher.Constraint("Horizontal", 3),
    Sketcher.Constraint("Symmetric", 0, 2, 1, 2, -1, 1),
    Sketcher.Constraint("DistanceY", 0, 2, 0, 1, 3.0),
    Sketcher.Constraint("DistanceX", 1, 1, 1, 2, 122.2),
])
pad4 = body.newObject("PartDesign::Pad", "Pad003")
pad4.Profile = sketch7
pad4.Length = 6

# Sketch on XZ plane
sketch8 = body.newObject("Sketcher::SketchObject", "Sketch007")
sketch8.AttachmentSupport = (doc.getObject("XZ_Plane"), [""])
sketch8.MapMode = "FlatFace"
sketch8.addGeometry([
    Part.Circle(Vector(0, 35.77, 0), Vector(0, 0, 1), 1),
    Part.Circle(Vector(-27.15, 35.77, 0), Vector(0, 0, 1), 1),
    Part.Circle(Vector(27.15, 35.77, 0), Vector(0, 0, 1), 1),
], False)
sketch8.addConstraint([
    Sketcher.Constraint("Equal", 0, 1),
    Sketcher.Constraint("Equal", 1, 2),
    Sketcher.Constraint("Symmetric", 1, 3, 2, 3, -2),
    Sketcher.Constraint("PointOnObject", 0, 3, -2),
    Sketcher.Constraint("Horizontal", 0, 3, 1, 3),
    Sketcher.Constraint("Diameter", 0, 2.0),
    Sketcher.Constraint("DistanceX", 1, 3, 2, 3, 54.3),
    Sketcher.Constraint("DistanceY", -1, 1, 0, 3, 35.77),
])
pocket4 = body.newObject("PartDesign::Pocket", "Pocket003")
pocket4.Profile = sketch8
pocket4.Length = 6
doc.recompute()

fillet3 = body.newObject("PartDesign::Fillet", "Fillet002")
fillet3.Base = (pocket4, edges_at(pocket4, [(44.285, 1.5, 16.473)]))
fillet3.Radius = 2

doc.recompute()
